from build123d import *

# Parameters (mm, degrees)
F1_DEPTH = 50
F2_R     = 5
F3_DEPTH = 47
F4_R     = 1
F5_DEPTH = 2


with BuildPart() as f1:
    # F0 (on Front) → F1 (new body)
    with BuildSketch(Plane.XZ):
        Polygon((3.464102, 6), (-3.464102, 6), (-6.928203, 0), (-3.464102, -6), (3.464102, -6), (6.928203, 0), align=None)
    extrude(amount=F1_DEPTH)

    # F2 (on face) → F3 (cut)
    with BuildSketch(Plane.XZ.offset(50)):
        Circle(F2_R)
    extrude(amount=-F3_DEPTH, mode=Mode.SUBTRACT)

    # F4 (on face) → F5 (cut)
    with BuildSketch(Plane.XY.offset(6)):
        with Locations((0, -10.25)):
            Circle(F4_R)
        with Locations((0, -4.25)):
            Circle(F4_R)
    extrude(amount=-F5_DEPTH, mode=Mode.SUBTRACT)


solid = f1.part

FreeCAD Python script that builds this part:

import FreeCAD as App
import Part
import Sketcher
Q = App.Units.Quantity

doc = App.newDocument("Part")
body = doc.addObject("PartDesign::Body", "Body")

sketch1 = body.newObject("Sketcher::SketchObject", "Sketch")
sketch1.AttachmentSupport = (doc.getObject("XZ_Plane"), [""])
sketch1.MapMode = "FlatFace"
sketch1.addGeometry([
    Part.LineSegment(App.Vector(3, 6, 0), App.Vector(-3, 6, 0)),
    Part.LineSegment(App.Vector(-3, 6, 0), App.Vector(-7, 0, 0)),
    Part.LineSegment(App.Vector(-7, 0, 0), App.Vector(-3, -6, 0)),
    Part.LineSegment(App.Vector(-3, -6, 0), App.Vector(3, -6, 0)),
    Part.LineSegment(App.Vector(3, -6, 0), App.Vector(7, 0, 0)),
    Part.LineSegment(App.Vector(7, 0, 0), App.Vector(3, 6, 0)),
], False)
sketch1.addConstraint([
    Sketcher.Constraint("Coincident", 0, 2, 1, 1),
    Sketcher.Constraint("Coincident", 1, 2, 2, 1),
    Sketcher.Constraint("Coincident", 2, 2, 3, 1),
    Sketcher.Constraint("Coincident", 3, 2, 4, 1),
    Sketcher.Constraint("Coincident", 4, 2, 5, 1),
    Sketcher.Constraint("Coincident", 5, 2, 0, 1),
    Sketcher.Constraint("Horizontal", 0),
    Sketcher.Constraint("Horizontal", 3),
    Sketcher.Constraint("Symmetric", 0, 2, 3, 2, -1, 1),
    Sketcher.Constraint("Symmetric", 1, 2, 4, 2, -1, 1),
    Sketcher.Constraint("PointOnObject", 1, 2, -1),
    Sketcher.Constraint("Parallel", 2, 5),
    Sketcher.Constraint("Vertical", 0, 2, 2, 2),
    Sketcher.Constraint("Angle", 1, Q("-119.999996 deg")),
    Sketcher.Constraint("DistanceY", -1, 1, 0, 2, 6.0),
    Sketcher.Constraint("DistanceX", 0, 2, -1, 1, 3.464102),
])
pad1 = body.newObject("PartDesign::Pad", "Pad")
pad1.Profile = sketch1
pad1.Length = 50

sketch2 = body.newObject("Sketcher::SketchObject", "Sketch001")
sketch2.AttachmentSupport = (doc.getObject("XZ_Plane"), [""])
sketch2.MapMode = "FlatFace"
sketch2.AttachmentOffset = App.Placement(App.Vector(0, 0, 50), App.Rotation())
sketch2.addGeometry(Part.Circle(App.Vector(0, 0, 0), App.Vector(0, 0, 1), 5), False)
sketch2.addConstraint([
    Sketcher.Constraint("Coincident", 0, 3, -1, 1),
    Sketcher.Constraint("Diameter", 0, 10.0),
])
pocket1 = body.newObject("PartDesign::Pocket", "Pocket")
pocket1.Profile = sketch2
pocket1.Length = 47

sketch3 = body.newObject("Sketcher::SketchObject", "Sketch002")
sketch3.AttachmentSupport = (doc.getObject("XY_Plane"), [""])
sketch3.MapMode = "FlatFace"
sketch3.AttachmentOffset = App.Placement(App.Vector(0, 0, 6), App.Rotation())
sketch3.addGeometry([
    Part.Circle(App.Vector(0, -10.2, 0), App.Vector(0, 0, 1), 1),
    Part.Circle(App.Vector(0, -4.2, 0), App.Vector(0, 0, 1), 1),
], False)
sketch3.addConstraint([
    Sketcher.Constraint("Equal", 0, 1),
    Sketcher.Constraint("PointOnObject", 0, 3, -2),
    Sketcher.Constraint("PointOnObject", 1, 3, -2),
    Sketcher.Constraint("Diameter", 0, 2.0),
    Sketcher.Constraint("DistanceY", 0, 3, 1, 3, 6.0),
    Sketcher.Constraint("DistanceY", 0, 3, -1, 1, 10.25),
])
pocket2 = body.newObject("PartDesign::Pocket", "Pocket001")
pocket2.Profile = sketch3
pocket2.Length = 2

doc.recompute()
